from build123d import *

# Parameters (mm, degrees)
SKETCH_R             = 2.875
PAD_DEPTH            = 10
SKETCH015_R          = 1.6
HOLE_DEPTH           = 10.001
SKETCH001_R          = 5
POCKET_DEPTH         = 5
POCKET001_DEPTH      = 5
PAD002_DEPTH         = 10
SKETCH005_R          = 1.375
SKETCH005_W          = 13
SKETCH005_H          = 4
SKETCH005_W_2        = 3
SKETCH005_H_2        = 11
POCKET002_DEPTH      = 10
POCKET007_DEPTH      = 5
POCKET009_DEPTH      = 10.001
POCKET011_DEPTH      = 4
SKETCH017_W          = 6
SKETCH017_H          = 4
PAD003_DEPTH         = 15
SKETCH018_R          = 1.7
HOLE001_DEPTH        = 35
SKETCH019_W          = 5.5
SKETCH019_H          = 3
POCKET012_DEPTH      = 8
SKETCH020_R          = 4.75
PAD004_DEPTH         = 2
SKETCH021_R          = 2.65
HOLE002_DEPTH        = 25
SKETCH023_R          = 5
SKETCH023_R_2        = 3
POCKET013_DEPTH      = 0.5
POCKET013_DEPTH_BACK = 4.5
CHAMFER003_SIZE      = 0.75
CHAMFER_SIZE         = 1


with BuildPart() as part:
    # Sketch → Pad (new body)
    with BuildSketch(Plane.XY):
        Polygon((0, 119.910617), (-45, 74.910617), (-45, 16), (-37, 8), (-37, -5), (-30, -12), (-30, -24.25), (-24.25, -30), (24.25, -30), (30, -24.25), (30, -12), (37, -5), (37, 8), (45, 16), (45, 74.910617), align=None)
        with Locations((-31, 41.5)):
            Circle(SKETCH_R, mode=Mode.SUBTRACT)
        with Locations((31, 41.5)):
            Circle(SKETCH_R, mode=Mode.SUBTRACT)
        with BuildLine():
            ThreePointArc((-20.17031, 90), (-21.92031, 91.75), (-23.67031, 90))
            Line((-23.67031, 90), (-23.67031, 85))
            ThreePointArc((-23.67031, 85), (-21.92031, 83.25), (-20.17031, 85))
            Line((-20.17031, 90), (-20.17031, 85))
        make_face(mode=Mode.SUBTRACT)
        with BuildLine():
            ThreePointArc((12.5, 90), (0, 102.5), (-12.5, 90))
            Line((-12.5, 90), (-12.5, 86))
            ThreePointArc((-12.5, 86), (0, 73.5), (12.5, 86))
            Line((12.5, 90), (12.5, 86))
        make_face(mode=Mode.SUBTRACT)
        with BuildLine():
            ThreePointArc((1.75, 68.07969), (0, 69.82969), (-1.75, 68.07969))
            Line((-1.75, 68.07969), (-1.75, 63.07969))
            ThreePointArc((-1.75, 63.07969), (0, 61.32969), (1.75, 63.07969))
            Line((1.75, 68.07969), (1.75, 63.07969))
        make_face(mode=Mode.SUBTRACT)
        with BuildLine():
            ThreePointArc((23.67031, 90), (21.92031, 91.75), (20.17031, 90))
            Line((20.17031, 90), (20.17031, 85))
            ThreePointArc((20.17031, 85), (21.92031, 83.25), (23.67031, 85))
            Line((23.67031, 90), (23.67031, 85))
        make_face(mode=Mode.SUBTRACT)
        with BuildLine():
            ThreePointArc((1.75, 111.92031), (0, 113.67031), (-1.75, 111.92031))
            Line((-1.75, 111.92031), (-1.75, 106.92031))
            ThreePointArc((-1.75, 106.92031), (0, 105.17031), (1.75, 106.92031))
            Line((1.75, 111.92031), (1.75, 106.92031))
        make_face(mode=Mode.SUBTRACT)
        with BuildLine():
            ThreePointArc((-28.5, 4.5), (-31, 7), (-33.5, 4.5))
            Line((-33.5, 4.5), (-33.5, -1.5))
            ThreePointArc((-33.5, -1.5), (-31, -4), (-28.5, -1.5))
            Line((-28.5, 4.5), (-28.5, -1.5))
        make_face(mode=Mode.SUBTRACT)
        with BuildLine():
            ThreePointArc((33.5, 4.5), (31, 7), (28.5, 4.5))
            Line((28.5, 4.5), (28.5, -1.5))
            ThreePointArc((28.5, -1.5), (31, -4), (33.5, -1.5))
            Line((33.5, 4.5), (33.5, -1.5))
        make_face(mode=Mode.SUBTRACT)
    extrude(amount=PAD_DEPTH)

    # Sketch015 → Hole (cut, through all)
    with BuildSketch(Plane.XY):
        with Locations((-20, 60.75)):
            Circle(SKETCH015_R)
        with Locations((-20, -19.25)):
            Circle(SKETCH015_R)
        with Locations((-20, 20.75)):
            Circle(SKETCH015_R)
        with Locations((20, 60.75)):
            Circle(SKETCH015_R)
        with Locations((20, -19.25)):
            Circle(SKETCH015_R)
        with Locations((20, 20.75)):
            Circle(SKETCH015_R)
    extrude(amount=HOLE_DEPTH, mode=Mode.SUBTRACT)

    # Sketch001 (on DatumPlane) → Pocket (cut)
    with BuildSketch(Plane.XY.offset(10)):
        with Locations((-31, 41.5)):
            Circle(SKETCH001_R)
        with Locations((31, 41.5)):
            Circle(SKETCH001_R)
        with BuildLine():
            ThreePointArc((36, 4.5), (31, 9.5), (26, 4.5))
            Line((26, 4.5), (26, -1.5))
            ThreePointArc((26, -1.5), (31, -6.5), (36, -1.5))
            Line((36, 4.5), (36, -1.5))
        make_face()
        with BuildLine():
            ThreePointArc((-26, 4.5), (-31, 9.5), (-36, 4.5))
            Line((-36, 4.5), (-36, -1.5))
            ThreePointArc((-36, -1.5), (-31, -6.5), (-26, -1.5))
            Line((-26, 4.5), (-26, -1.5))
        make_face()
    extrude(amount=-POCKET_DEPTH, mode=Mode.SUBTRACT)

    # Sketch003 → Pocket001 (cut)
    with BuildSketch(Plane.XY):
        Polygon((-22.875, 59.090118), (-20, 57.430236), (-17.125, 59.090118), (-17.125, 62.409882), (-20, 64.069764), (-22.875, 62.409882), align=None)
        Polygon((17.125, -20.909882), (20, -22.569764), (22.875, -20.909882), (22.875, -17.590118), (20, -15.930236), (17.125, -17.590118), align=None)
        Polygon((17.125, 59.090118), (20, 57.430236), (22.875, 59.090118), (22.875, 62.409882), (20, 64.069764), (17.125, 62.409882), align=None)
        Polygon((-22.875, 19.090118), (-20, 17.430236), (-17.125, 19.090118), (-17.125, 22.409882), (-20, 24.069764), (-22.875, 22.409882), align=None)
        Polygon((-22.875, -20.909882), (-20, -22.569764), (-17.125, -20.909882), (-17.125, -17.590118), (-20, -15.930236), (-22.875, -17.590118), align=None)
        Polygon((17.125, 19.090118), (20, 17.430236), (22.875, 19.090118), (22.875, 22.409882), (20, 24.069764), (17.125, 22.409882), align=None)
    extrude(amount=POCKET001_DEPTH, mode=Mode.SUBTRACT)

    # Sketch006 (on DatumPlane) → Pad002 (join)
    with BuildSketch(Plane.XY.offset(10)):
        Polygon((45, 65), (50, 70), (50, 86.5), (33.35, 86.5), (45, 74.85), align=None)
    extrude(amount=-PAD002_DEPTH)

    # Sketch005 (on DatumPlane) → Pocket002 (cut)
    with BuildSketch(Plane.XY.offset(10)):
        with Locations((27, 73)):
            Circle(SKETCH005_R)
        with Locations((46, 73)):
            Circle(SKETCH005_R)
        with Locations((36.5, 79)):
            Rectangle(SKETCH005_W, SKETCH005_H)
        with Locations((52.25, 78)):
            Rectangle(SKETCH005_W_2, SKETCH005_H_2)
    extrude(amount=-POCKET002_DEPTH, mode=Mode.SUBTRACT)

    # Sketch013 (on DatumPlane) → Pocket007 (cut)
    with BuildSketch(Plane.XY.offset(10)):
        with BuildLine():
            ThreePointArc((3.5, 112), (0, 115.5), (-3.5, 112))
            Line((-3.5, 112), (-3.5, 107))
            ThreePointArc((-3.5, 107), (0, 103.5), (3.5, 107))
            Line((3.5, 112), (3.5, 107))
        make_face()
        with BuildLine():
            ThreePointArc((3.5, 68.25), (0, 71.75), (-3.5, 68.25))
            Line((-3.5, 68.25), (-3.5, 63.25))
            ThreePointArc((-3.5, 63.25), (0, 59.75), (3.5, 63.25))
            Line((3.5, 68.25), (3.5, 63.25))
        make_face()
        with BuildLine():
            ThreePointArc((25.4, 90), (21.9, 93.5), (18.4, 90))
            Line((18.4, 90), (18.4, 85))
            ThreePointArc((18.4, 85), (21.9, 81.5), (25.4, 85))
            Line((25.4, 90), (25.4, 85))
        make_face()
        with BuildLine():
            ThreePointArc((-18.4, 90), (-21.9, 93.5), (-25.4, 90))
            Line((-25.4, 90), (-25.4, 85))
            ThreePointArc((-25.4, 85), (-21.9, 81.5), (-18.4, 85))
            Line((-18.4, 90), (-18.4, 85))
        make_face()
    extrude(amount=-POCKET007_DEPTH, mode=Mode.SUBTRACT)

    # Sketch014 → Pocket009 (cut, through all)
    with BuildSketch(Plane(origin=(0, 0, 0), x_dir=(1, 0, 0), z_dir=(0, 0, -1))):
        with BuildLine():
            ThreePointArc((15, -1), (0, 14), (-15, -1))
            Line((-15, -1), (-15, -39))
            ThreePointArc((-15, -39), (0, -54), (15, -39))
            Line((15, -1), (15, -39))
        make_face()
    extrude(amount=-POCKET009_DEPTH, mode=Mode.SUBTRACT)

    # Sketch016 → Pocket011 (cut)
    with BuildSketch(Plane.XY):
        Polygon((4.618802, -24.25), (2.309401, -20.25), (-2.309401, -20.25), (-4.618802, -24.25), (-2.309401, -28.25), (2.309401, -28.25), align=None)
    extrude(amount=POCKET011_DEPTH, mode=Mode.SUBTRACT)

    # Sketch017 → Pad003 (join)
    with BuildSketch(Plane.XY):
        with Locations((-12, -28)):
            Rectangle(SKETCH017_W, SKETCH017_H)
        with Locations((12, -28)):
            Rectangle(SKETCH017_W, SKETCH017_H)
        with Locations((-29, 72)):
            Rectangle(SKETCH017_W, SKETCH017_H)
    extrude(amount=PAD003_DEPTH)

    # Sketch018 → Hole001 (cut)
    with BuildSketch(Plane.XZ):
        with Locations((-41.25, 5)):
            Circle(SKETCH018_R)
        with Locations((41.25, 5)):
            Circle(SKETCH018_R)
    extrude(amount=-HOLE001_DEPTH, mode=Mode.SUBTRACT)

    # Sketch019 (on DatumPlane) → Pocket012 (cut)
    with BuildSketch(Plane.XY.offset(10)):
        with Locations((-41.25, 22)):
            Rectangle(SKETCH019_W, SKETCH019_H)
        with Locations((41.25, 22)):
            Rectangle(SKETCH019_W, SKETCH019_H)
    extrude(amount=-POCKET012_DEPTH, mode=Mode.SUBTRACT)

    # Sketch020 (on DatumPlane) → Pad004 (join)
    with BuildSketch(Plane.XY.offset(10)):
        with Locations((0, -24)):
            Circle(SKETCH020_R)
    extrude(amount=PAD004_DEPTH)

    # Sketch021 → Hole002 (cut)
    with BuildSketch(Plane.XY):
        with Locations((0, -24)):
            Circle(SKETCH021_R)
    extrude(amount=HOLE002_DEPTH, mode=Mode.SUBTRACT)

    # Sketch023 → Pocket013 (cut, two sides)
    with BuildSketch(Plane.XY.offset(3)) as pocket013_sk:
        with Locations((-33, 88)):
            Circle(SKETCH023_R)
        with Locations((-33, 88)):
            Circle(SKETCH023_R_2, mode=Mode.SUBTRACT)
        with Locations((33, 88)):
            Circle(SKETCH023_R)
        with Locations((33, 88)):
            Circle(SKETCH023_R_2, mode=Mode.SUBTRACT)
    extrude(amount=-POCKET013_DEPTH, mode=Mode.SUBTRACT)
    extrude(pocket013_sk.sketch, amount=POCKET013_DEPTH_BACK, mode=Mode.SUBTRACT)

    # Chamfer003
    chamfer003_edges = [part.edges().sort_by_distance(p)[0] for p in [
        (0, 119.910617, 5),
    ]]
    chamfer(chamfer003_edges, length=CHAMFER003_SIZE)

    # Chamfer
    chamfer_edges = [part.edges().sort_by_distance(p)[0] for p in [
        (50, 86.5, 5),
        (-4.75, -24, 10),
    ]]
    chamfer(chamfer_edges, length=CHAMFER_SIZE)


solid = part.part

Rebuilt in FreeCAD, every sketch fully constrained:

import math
import FreeCAD as App
import Part
import Sketcher
from FreeCAD import Vector
Q = App.Units.Quantity


def edges_at(feature, points):
    """Names of the edges that pass closest to the given points."""
    edges = feature.Shape.Edges
    near = lambda p: min(range(len(edges)), key=lambda i: edges[i].distToShape(Part.Vertex(*p))[0])
    return sorted({f"Edge{near(p) + 1}" for p in points})

doc = App.newDocument("Part")
body = doc.addObject("PartDesign::Body", "Body")

# Sketch on XY plane
sketch1 = body.newObject("Sketcher::SketchObject", "Sketch")
sketch1.AttachmentSupport = (doc.getObject("XY_Plane"), [""])
sketch1.MapMode = "FlatFace"
sketch1.addGeometry([
    Part.LineSegment(Vector(0, 119.9, 0), Vector(-45, 74.9, 0)),  # 0
    Part.LineSegment(Vector(-45, 74.9, 0), Vector(-45, 16, 0)),  # 1
    Part.LineSegment(Vector(-45, 16, 0), Vector(-37, 8, 0)),  # 2
    Part.LineSegment(Vector(-37, 8, 0), Vector(-37, -5, 0)),  # 3
    Part.LineSegment(Vector(-37, -5, 0), Vector(-30, -12, 0)),  # 4
    Part.LineSegment(Vector(-30, -12, 0), Vector(-30, -24.2, 0)),  # 5
    Part.LineSegment(Vector(-30, -24.2, 0), Vector(-24.2, -30, 0)),  # 6
    Part.LineSegment(Vector(-24.2, -30, 0), Vector(24.2, -30, 0)),  # 7
    Part.LineSegment(Vector(24.2, -30, 0), Vector(30, -24.2, 0)),  # 8
    Part.LineSegment(Vector(30, -24.2, 0), Vector(30, -12, 0)),  # 9
    Part.LineSegment(Vector(30, -12, 0), Vector(37, -5, 0)),  # 10
    Part.LineSegment(Vector(37, -5, 0), Vector(37, 8, 0)),  # 11
    Part.LineSegment(Vector(37, 8, 0), Vector(45, 16, 0)),  # 12
    Part.LineSegment(Vector(45, 16, 0), Vector(45, 74.9, 0)),  # 13
    Part.LineSegment(Vector(45, 74.9, 0), Vector(0, 119.9, 0)),  # 14
    Part.ArcOfCircle(Part.Circle(Vector(-31, 4.5, 0), Vector(0, 0, 1), 2.5), math.radians(0), math.radians(180)),  # 15
    Part.LineSegment(Vector(-28.5, 4.5, 0), Vector(-28.5, -1.5, 0)),  # 16
    Part.ArcOfCircle(Part.Circle(Vector(-31, -1.5, 0), Vector(0, 0, 1), 2.5), math.radians(180), math.radians(360)),  # 17
    Part.LineSegment(Vector(-33.5, -1.5, 0), Vector(-33.5, 4.5, 0)),  # 18
    Part.Circle(Vector(-31, 41.5, 0), Vector(0, 0, 1), 2.9),  # 19
    Part.ArcOfCircle(Part.Circle(Vector(31, 4.5, 0), Vector(0, 0, 1), 2.5), math.radians(0), math.radians(180)),  # 20
    Part.LineSegment(Vector(33.5, 4.5, 0), Vector(33.5, -1.5, 0)),  # 21
    Part.ArcOfCircle(Part.Circle(Vector(31, -1.5, 0), Vector(0, 0, 1), 2.5), math.radians(180), math.radians(360)),  # 22
    Part.LineSegment(Vector(28.5, -1.5, 0), Vector(28.5, 4.5, 0)),  # 23
    Part.Circle(Vector(31, 41.5, 0), Vector(0, 0, 1), 2.9),  # 24
    Part.ArcOfCircle(Part.Circle(Vector(-21.9, 90, 0), Vector(0, 0, 1), 1.8), math.radians(0), math.radians(180)),  # 25
    Part.LineSegment(Vector(-20.2, 90, 0), Vector(-20.2, 85, 0)),  # 26
    Part.ArcOfCircle(Part.Circle(Vector(-21.9, 85, 0), Vector(0, 0, 1), 1.8), math.radians(180), math.radians(360)),  # 27
    Part.LineSegment(Vector(-23.7, 85, 0), Vector(-23.7, 90, 0)),  # 28
    Part.ArcOfCircle(Part.Circle(Vector(0, 68.1, 0), Vector(0, 0, 1), 1.8), math.radians(0), math.radians(180)),  # 29
    Part.LineSegment(Vector(1.8, 68.1, 0), Vector(1.8, 63.1, 0)),  # 30
    Part.ArcOfCircle(Part.Circle(Vector(0, 63.1, 0), Vector(0, 0, 1), 1.8), math.radians(180), math.radians(360)),  # 31
    Part.LineSegment(Vector(-1.8, 63.1, 0), Vector(-1.8, 68.1, 0)),  # 32
    Part.ArcOfCircle(Part.Circle(Vector(0, 90, 0), Vector(0, 0, 1), 12.5), math.radians(0), math.radians(180)),  # 33
    Part.LineSegment(Vector(12.5, 90, 0), Vector(12.5, 86, 0)),  # 34
    Part.ArcOfCircle(Part.Circle(Vector(0, 86, 0), Vector(0, 0, 1), 12.5), math.radians(180), math.radians(360)),  # 35
    Part.LineSegment(Vector(-12.5, 86, 0), Vector(-12.5, 90, 0)),  # 36
    Part.ArcOfCircle(Part.Circle(Vector(0, 111.9, 0), Vector(0, 0, 1), 1.8), math.radians(0), math.radians(180)),  # 37
    Part.LineSegment(Vector(1.8, 111.9, 0), Vector(1.8, 106.9, 0)),  # 38
    Part.ArcOfCircle(Part.Circle(Vector(0, 106.9, 0), Vector(0, 0, 1), 1.8), math.radians(180), math.radians(360)),  # 39
    Part.LineSegment(Vector(-1.8, 106.9, 0), Vector(-1.8, 111.9, 0)),  # 40
    Part.ArcOfCircle(Part.Circle(Vector(21.9, 90, 0), Vector(0, 0, 1), 1.8), math.radians(0), math.radians(180)),  # 41
    Part.LineSegment(Vector(23.7, 90, 0), Vector(23.7, 85, 0)),  # 42
    Part.ArcOfCircle(Part.Circle(Vector(21.9, 85, 0), Vector(0, 0, 1), 1.8), math.radians(180), math.radians(360)),  # 43
    Part.LineSegment(Vector(20.2, 85, 0), Vector(20.2, 90, 0)),  # 44
], False)
sketch1.addConstraint([
    Sketcher.Constraint("Coincident", 0, 2, 1, 1),
    Sketcher.Constraint("Coincident", 1, 2, 2, 1),
    Sketcher.Constraint("Coincident", 2, 2, 3, 1),
    Sketcher.Constraint("Coincident", 3, 2, 4, 1),
    Sketcher.Constraint("Coincident", 4, 2, 5, 1),
    Sketcher.Constraint("Coincident", 5, 2, 6, 1),
    Sketcher.Constraint("Coincident", 6, 2, 7, 1),
    Sketcher.Constraint("Coincident", 7, 2, 8, 1),
    Sketcher.Constraint("Coincident", 8, 2, 9, 1),
    Sketcher.Constraint("Coincident", 9, 2, 10, 1),
    Sketcher.Constraint("Coincident", 10, 2, 11, 1),
    Sketcher.Constraint("Coincident", 11, 2, 12, 1),
    Sketcher.Constraint("Coincident", 12, 2, 13, 1),
    Sketcher.Constraint("Coincident", 13, 2, 14, 1),
    Sketcher.Constraint("Coincident", 14, 2, 0, 1),
    Sketcher.Constraint("Tangent", 15, 1, 16, 1),
    Sketcher.Constraint("Tangent", 16, 2, 17, 2),
    Sketcher.Constraint("Tangent", 17, 1, 18, 1),
    Sketcher.Constraint("Tangent", 18, 2, 15, 2),
    Sketcher.Constraint("Tangent", 20, 1, 21, 1),
    Sketcher.Constraint("Tangent", 21, 2, 22, 2),
    Sketcher.Constraint("Tangent", 22, 1, 23, 1),
    Sketcher.Constraint("Tangent", 23, 2, 20, 2),
    Sketcher.Constraint("Tangent", 25, 1, 26, 1),
    Sketcher.Constraint("Tangent", 26, 2, 27, 2),
    Sketcher.Constraint("Tangent", 27, 1, 28, 1),
    Sketcher.Constraint("Tangent", 28, 2, 25, 2),
    Sketcher.Constraint("Tangent", 29, 1, 30, 1),
    Sketcher.Constraint("Tangent", 30, 2, 31, 2),
    Sketcher.Constraint("Tangent", 31, 1, 32, 1),
    Sketcher.Constraint("Tangent", 32, 2, 29, 2),
    Sketcher.Constraint("Tangent", 33, 1, 34, 1),
    Sketcher.Constraint("Tangent", 34, 2, 35, 2),
    Sketcher.Constraint("Tangent", 35, 1, 36, 1),
    Sketcher.Constraint("Tangent", 36, 2, 33, 2),
    Sketcher.Constraint("Tangent", 37, 1, 38, 1),
    Sketcher.Constraint("Tangent", 38, 2, 39, 2),
    Sketcher.Constraint("Tangent", 39, 1, 40, 1),
    Sketcher.Constraint("Tangent", 40, 2, 37, 2),
    Sketcher.Constraint("Tangent", 41, 1, 42, 1),
    Sketcher.Constraint("Tangent", 42, 2, 43, 2),
    Sketcher.Constraint("Tangent", 43, 1, 44, 1),
    Sketcher.Constraint("Tangent", 44, 2, 41, 2),
    Sketcher.Constraint("Vertical", 1),
    Sketcher.Constraint("Vertical", 3),
    Sketcher.Constraint("Vertical", 5),
    Sketcher.Constraint("Horizontal", 7),
    Sketcher.Constraint("Vertical", 9),
    Sketcher.Constraint("Vertical", 11),
    Sketcher.Constraint("Vertical", 13),
    Sketcher.Constraint("Vertical", 16),
    Sketcher.Constraint("Vertical", 18),
    Sketcher.Constraint("Vertical", 21),
    Sketcher.Constraint("Vertical", 23),
    Sketcher.Constraint("Vertical", 26),
    Sketcher.Constraint("Vertical", 28),
    Sketcher.Constraint("Vertical", 30),
    Sketcher.Constraint("Vertical", 32),
    Sketcher.Constraint("Vertical", 34),
    Sketcher.Constraint("Vertical", 36),
    Sketcher.Constraint("Vertical", 38),
    Sketcher.Constraint("Vertical", 40),
    Sketcher.Constraint("Vertical", 42),
    Sketcher.Constraint("Vertical", 44),
    Sketcher.Constraint("Equal", 17, 20),
    Sketcher.Constraint("Equal", 19, 24),
    Sketcher.Constraint("Equal", 27, 29),
    Sketcher.Constraint("Equal", 31, 37),
    Sketcher.Constraint("Equal", 39, 41),
    Sketcher.Constraint("Symmetric", 15, 3, 20, 3, -2),
    Sketcher.Constraint("Symmetric", 19, 3, 24, 3, -2),
    Sketcher.Constraint("Symmetric", 25, 3, 41, 3, -2),
    Sketcher.Constraint("Symmetric", 5, 2, 8, 2, -2),
    Sketcher.Constraint("Symmetric", 3, 2, 10, 2, -2),
    Sketcher.Constraint("Symmetric", 1, 2, 12, 2, -2),
    Sketcher.Constraint("PointOnObject", 29, 3, -2),
    Sketcher.Constraint("PointOnObject", 33, 3, -2),
    Sketcher.Constraint("PointOnObject", 37, 3, -2),
    Sketcher.Constraint("PointOnObject", 14, 2, -2),
    Sketcher.Constraint("Perpendicular", 0, 2),
    Sketcher.Constraint("Parallel", 2, 4),
    Sketcher.Constraint("Parallel", 4, 6),
    Sketcher.Constraint("Perpendicular", 6, 8),
    Sketcher.Constraint("Parallel", 8, 10),
    Sketcher.Constraint("Parallel", 10, 12),
    Sketcher.Constraint("Perpendicular", 12, 14),
    Sketcher.Constraint("Horizontal", 17, 3, 22, 3),
    Sketcher.Constraint("Horizontal", 25, 3, 33, 3),
    Sketcher.Constraint("Horizontal", 27, 3, 43, 3),
    Sketcher.Constraint("Horizontal", 4, 2, 9, 2),
    Sketcher.Constraint("Vertical", 17, 3, 19, 3),
    Sketcher.Constraint("Equal", 28, 30),
    Sketcher.Constraint("Equal", 32, 38),
    Sketcher.Constraint("Radius", 15, Q("2.5 mm")),
    Sketcher.Constraint("Radius", 33, Q("12.5 mm")),
    Sketcher.Constraint("Diameter", 19, Q("5.75 mm")),
    Sketcher.Constraint("DistanceY", 3, 2, 3, 1, Q("13 mm")),
    Sketcher.Constraint("DistanceY", 16, 2, 16, 1, Q("6 mm")),
    Sketcher.Constraint("DistanceY", 26, 2, 26, 1, Q("5 mm")),
    Sketcher.Constraint("DistanceY", 34, 2, 34, 1, Q("4 mm")),
    Sketcher.Constraint("Radius", 25, Q("1.75 mm")),
    Sketcher.Constraint("DistanceX", 7, 1, 7, 2, Q("48.5 mm")),
    Sketcher.Constraint("DistanceX", 15, 3, -1, 1, Q("31 mm")),
    Sketcher.Constraint("DistanceY", -1, 1, 25, 3, Q("90 mm")),
    Sketcher.Constraint("DistanceX", 0, 2, -1, 1, Q("45 mm")),
    Sketcher.Constraint("DistanceY", -1, 1, 1, 2, Q("16 mm")),
    Sketcher.Constraint("DistanceX", 2, 2, -1, 1, Q("37 mm")),
    Sketcher.Constraint("DistanceX", 4, 2, -1, 1, Q("30 mm")),
    Sketcher.Constraint("DistanceY", 6, 2, -1, 1, Q("30 mm")),
    Sketcher.Constraint("DistanceY", 15, 3, 19, 3, Q("37 mm")),
    Sketcher.Constraint("DistanceY", -1, 1, 15, 3, Q("4.5 mm")),
    Sketcher.Constraint("DistanceY", 1, 2, 1, 1, Q("58.910617 mm")),
    Sketcher.Constraint("DistanceX", 25, 3, -1, 1, Q("21.92031 mm")),
    Sketcher.Constraint("DistanceY", -1, 1, 29, 3, Q("68.07969 mm")),
    Sketcher.Constraint("DistanceY", -1, 1, 37, 3, Q("111.92031 mm")),
])
pad1 = body.newObject("PartDesign::Pad", "Pad")
pad1.Profile = sketch1
pad1.Length = 10

# Sketch on XY plane
sketch2 = body.newObject("Sketcher::SketchObject", "Sketch001")
sketch2.AttachmentSupport = (doc.getObject("XY_Plane"), [""])
sketch2.MapMode = "FlatFace"
sketch2.addGeometry([
    Part.Circle(Vector(-20, 60.8, 0), Vector(0, 0, 1), 1.6),  # 0
    Part.Circle(Vector(-20, -19.2, 0), Vector(0, 0, 1), 1.6),  # 1
    Part.Circle(Vector(-20, 20.8, 0), Vector(0, 0, 1), 1.6),  # 2
    Part.Circle(Vector(20, 60.8, 0), Vector(0, 0, 1), 1.6),  # 3
    Part.Circle(Vector(20, -19.2, 0), Vector(0, 0, 1), 1.6),  # 4
    Part.Circle(Vector(20, 20.8, 0), Vector(0, 0, 1), 1.6),  # 5
], False)
sketch2.addConstraint([
    Sketcher.Constraint("Equal", 0, 1),
    Sketcher.Constraint("Equal", 1, 2),
    Sketcher.Constraint("Equal", 2, 3),
    Sketcher.Constraint("Equal", 3, 4),
    Sketcher.Constraint("Equal", 4, 5),
    Sketcher.Constraint("Symmetric", 0, 3, 3, 3, -2),
    Sketcher.Constraint("Symmetric", 1, 3, 4, 3, -2),
    Sketcher.Constraint("Symmetric", 2, 3, 5, 3, -2),
    Sketcher.Constraint("Vertical", 0, 3, 1, 3),
    Sketcher.Constraint("Vertical", 1, 3, 2, 3),
    Sketcher.Constraint("Diameter", 0, Q("3.2 mm")),
    Sketcher.Constraint("DistanceX", 0, 3, -1, 1, Q("20 mm")),
    Sketcher.Constraint("DistanceY", 1, 3, 0, 3, Q("80 mm")),
    Sketcher.Constraint("DistanceY", 2, 3, 0, 3, Q("40 mm")),
    Sketcher.Constraint("DistanceY", -1, 1, 0, 3, Q("60.75 mm")),
])
pocket1 = body.newObject("PartDesign::Pocket", "Pocket")
pocket1.Profile = sketch2
pocket1.Type = "ThroughAll"
pocket1.Reversed = True

# Sketch on XY plane
sketch3 = body.newObject("Sketcher::SketchObject", "Sketch002")
sketch3.AttachmentSupport = (doc.getObject("XY_Plane"), [""])
sketch3.MapMode = "FlatFace"
sketch3.AttachmentOffset = App.Placement(Vector(0, 0, 10), App.Rotation())
sketch3.addGeometry([
    Part.Circle(Vector(-31, 42, 0), Vector(0, 0, 1), 5),  # 0
    Part.Circle(Vector(31, 42, 0), Vector(0, 0, 1), 5),  # 1
    Part.ArcOfCircle(Part.Circle(Vector(31, 4, 0), Vector(0, 0, 1), 5), math.radians(0), math.radians(180)),  # 2
    Part.LineSegment(Vector(26, 4, 0), Vector(26, -2, 0)),  # 3
    Part.ArcOfCircle(Part.Circle(Vector(31, -2, 0), Vector(0, 0, 1), 5), math.radians(180), math.radians(360)),  # 4
    Part.LineSegment(Vector(36, -2, 0), Vector(36, 4, 0)),  # 5
    Part.ArcOfCircle(Part.Circle(Vector(-31, 4, 0), Vector(0, 0, 1), 5), math.radians(0), math.radians(180)),  # 6
    Part.LineSegment(Vector(-36, 4, 0), Vector(-36, -2, 0)),  # 7
    Part.ArcOfCircle(Part.Circle(Vector(-31, -2, 0), Vector(0, 0, 1), 5), math.radians(180), math.radians(360)),  # 8
    Part.LineSegment(Vector(-26, -2, 0), Vector(-26, 4, 0)),  # 9
], False)
sketch3.addConstraint([
    Sketcher.Constraint("Tangent", 2, 2, 3, 1),
    Sketcher.Constraint("Tangent", 3, 2, 4, 1),
    Sketcher.Constraint("Tangent", 4, 2, 5, 1),
    Sketcher.Constraint("Tangent", 5, 2, 2, 1),
    Sketcher.Constraint("Tangent", 6, 2, 7, 1),
    Sketcher.Constraint("Tangent", 7, 2, 8, 1),
    Sketcher.Constraint("Tangent", 8, 2, 9, 1),
    Sketcher.Constraint("Tangent", 9, 2, 6, 1),
    Sketcher.Constraint("Vertical", 3),
    Sketcher.Constraint("Vertical", 5),
    Sketcher.Constraint("Vertical", 7),
    Sketcher.Constraint("Vertical", 9),
    Sketcher.Constraint("Equal", 0, 1),
    Sketcher.Constraint("Equal", 1, 2),
    Sketcher.Constraint("Equal", 4, 6),
    Sketcher.Constraint("Symmetric", 0, 3, 1, 3, -2),
    Sketcher.Constraint("Symmetric", 2, 3, 6, 3, -2),
    Sketcher.Constraint("Horizontal", 4, 3, 8, 3),
    Sketcher.Constraint("Vertical", 1, 3, 2, 3),
    Sketcher.Constraint("Diameter", 0, Q("10 mm")),
    Sketcher.Constraint("DistanceY", 3, 2, 3, 1, Q("6 mm")),
    Sketcher.Constraint("DistanceX", 0, 3, -1, 1, Q("31 mm")),
    Sketcher.Constraint("DistanceY", 2, 3, 1, 3, Q("37 mm")),
    Sketcher.Constraint("DistanceY", -1, 1, 0, 3, Q("41.5 mm")),
])
pocket2 = body.newObject("PartDesign::Pocket", "Pocket001")
pocket2.Profile = sketch3
pocket2.Length = 5

# Sketch on XY plane
sketch4 = body.newObject("Sketcher::SketchObject", "Sketch003")
sketch4.AttachmentSupport = (doc.getObject("XY_Plane"), [""])
sketch4.MapMode = "FlatFace"
sketch4.addGeometry([
    Part.LineSegment(Vector(-22.9, 59.1, 0), Vector(-20, 57.4, 0)),  # 0
    Part.LineSegment(Vector(-20, 57.4, 0), Vector(-17.1, 59.1, 0)),  # 1
    Part.LineSegment(Vector(-17.1, 59.1, 0), Vector(-17.1, 62.4, 0)),  # 2
    Part.LineSegment(Vector(-17.1, 62.4, 0), Vector(-20, 64.1, 0)),  # 3
    Part.LineSegment(Vector(-20, 64.1, 0), Vector(-22.9, 62.4, 0)),  # 4
    Part.LineSegment(Vector(-22.9, 62.4, 0), Vector(-22.9, 59.1, 0)),  # 5
    Part.LineSegment(Vector(17.1, -20.9, 0), Vector(20, -22.6, 0)),  # 6
    Part.LineSegment(Vector(20, -22.6, 0), Vector(22.9, -20.9, 0)),  # 7
    Part.LineSegment(Vector(22.9, -20.9, 0), Vector(22.9, -17.6, 0)),  # 8
    Part.LineSegment(Vector(22.9, -17.6, 0), Vector(20, -15.9, 0)),  # 9
    Part.LineSegment(Vector(20, -15.9, 0), Vector(17.1, -17.6, 0)),  # 10
    Part.LineSegment(Vector(17.1, -17.6, 0), Vector(17.1, -20.9, 0)),  # 11
    Part.LineSegment(Vector(17.1, 59.1, 0), Vector(20, 57.4, 0)),  # 12
    Part.LineSegment(Vector(20, 57.4, 0), Vector(22.9, 59.1, 0)),  # 13
    Part.LineSegment(Vector(22.9, 59.1, 0), Vector(22.9, 62.4, 0)),  # 14
    Part.LineSegment(Vector(22.9, 62.4, 0), Vector(20, 64.1, 0)),  # 15
    Part.LineSegment(Vector(20, 64.1, 0), Vector(17.1, 62.4, 0)),  # 16
    Part.LineSegment(Vector(17.1, 62.4, 0), Vector(17.1, 59.1, 0)),  # 17
    Part.LineSegment(Vector(-22.9, 19.1, 0), Vector(-20, 17.4, 0)),  # 18
    Part.LineSegment(Vector(-20, 17.4, 0), Vector(-17.1, 19.1, 0)),  # 19
    Part.LineSegment(Vector(-17.1, 19.1, 0), Vector(-17.1, 22.4, 0)),  # 20
    Part.LineSegment(Vector(-17.1, 22.4, 0), Vector(-20, 24.1, 0)),  # 21
    Part.LineSegment(Vector(-20, 24.1, 0), Vector(-22.9, 22.4, 0)),  # 22
    Part.LineSegment(Vector(-22.9, 22.4, 0), Vector(-22.9, 19.1, 0)),  # 23
    Part.LineSegment(Vector(-22.9, -20.9, 0), Vector(-20, -22.6, 0)),  # 24
    Part.LineSegment(Vector(-20, -22.6, 0), Vector(-17.1, -20.9, 0)),  # 25
    Part.LineSegment(Vector(-17.1, -20.9, 0), Vector(-17.1, -17.6, 0)),  # 26
    Part.LineSegment(Vector(-17.1, -17.6, 0), Vector(-20, -15.9, 0)),  # 27
    Part.LineSegment(Vector(-20, -15.9, 0), Vector(-22.9, -17.6, 0)),  # 28
    Part.LineSegment(Vector(-22.9, -17.6, 0), Vector(-22.9, -20.9, 0)),  # 29
    Part.LineSegment(Vector(17.1, 19.1, 0), Vector(20, 17.4, 0)),  # 30
    Part.LineSegment(Vector(20, 17.4, 0), Vector(22.9, 19.1, 0)),  # 31
    Part.LineSegment(Vector(22.9, 19.1, 0), Vector(22.9, 22.4, 0)),  # 32
    Part.LineSegment(Vector(22.9, 22.4, 0), Vector(20, 24.1, 0)),  # 33
    Part.LineSegment(Vector(20, 24.1, 0), Vector(17.1, 22.4, 0)),  # 34
    Part.LineSegment(Vector(17.1, 22.4, 0), Vector(17.1, 19.1, 0)),  # 35
], False)
sketch4.addConstraint([
    Sketcher.Constraint("Coincident", 0, 2, 1, 1),
    Sketcher.Constraint("Coincident", 1, 2, 2, 1),
    Sketcher.Constraint("Coincident", 2, 2, 3, 1),
    Sketcher.Constraint("Coincident", 3, 2, 4, 1),
    Sketcher.Constraint("Coincident", 4, 2, 5, 1),
    Sketcher.Constraint("Coincident", 5, 2, 0, 1),
    Sketcher.Constraint("Coincident", 6, 2, 7, 1),
    Sketcher.Constraint("Coincident", 7, 2, 8, 1),
    Sketcher.Constraint("Coincident", 8, 2, 9, 1),
    Sketcher.Constraint("Coincident", 9, 2, 10, 1),
    Sketcher.Constraint("Coincident", 10, 2, 11, 1),
    Sketcher.Constraint("Coincident", 11, 2, 6, 1),
    Sketcher.Constraint("Coincident", 12, 2, 13, 1),
    Sketcher.Constraint("Coincident", 13, 2, 14, 1),
    Sketcher.Constraint("Coincident", 14, 2, 15, 1),
    Sketcher.Constraint("Coincident", 15, 2, 16, 1),
    Sketcher.Constraint("Coincident", 16, 2, 17, 1),
    Sketcher.Constraint("Coincident", 17, 2, 12, 1),
    Sketcher.Constraint("Coincident", 18, 2, 19, 1),
    Sketcher.Constraint("Coincident", 19, 2, 20, 1),
    Sketcher.Constraint("Coincident", 20, 2, 21, 1),
    Sketcher.Constraint("Coincident", 21, 2, 22, 1),
    Sketcher.Constraint("Coincident", 22, 2, 23, 1),
    Sketcher.Constraint("Coincident", 23, 2, 18, 1),
    Sketcher.Constraint("Coincident", 24, 2, 25, 1),
    Sketcher.Constraint("Coincident", 25, 2, 26, 1),
    Sketcher.Constraint("Coincident", 26, 2, 27, 1),
    Sketcher.Constraint("Coincident", 27, 2, 28, 1),
    Sketcher.Constraint("Coincident", 28, 2, 29, 1),
    Sketcher.Constraint("Coincident", 29, 2, 24, 1),
    Sketcher.Constraint("Coincident", 30, 2, 31, 1),
    Sketcher.Constraint("Coincident", 31, 2, 32, 1),
    Sketcher.Constraint("Coincident", 32, 2, 33, 1),
    Sketcher.Constraint("Coincident", 33, 2, 34, 1),
    Sketcher.Constraint("Coincident", 34, 2, 35, 1),
    Sketcher.Constraint("Coincident", 35, 2, 30, 1),
    Sketcher.Constraint("Vertical", 2),
    Sketcher.Constraint("Vertical", 5),
    Sketcher.Constraint("Vertical", 8),
    Sketcher.Constraint("Vertical", 11),
    Sketcher.Constraint("Vertical", 14),
    Sketcher.Constraint("Vertical", 17),
    Sketcher.Constraint("Vertical", 20),
    Sketcher.Constraint("Vertical", 23),
    Sketcher.Constraint("Vertical", 26),
    Sketcher.Constraint("Vertical", 29),
    Sketcher.Constraint("Vertical", 32),
    Sketcher.Constraint("Vertical", 35),
    Sketcher.Constraint("Symmetric", 0, 2, 12, 2, -2),
    Sketcher.Constraint("Symmetric", 5, 2, 13, 2, -2),
    Sketcher.Constraint("Symmetric", 3, 2, 15, 2, -2),
    Sketcher.Constraint("Symmetric", 2, 2, 16, 2, -2),
    Sketcher.Constraint("Symmetric", 6, 2, 24, 2, -2),
    Sketcher.Constraint("Symmetric", 11, 2, 25, 2, -2),
    Sketcher.Constraint("Symmetric", 9, 2, 27, 2, -2),
    Sketcher.Constraint("Symmetric", 8, 2, 28, 2, -2),
    Sketcher.Constraint("Symmetric", 18, 2, 30, 2, -2),
    Sketcher.Constraint("Symmetric", 23, 2, 31, 2, -2),
    Sketcher.Constraint("Symmetric", 21, 2, 33, 2, -2),
    Sketcher.Constraint("Symmetric", 20, 2, 34, 2, -2),
    Sketcher.Constraint("Parallel", 0, 3),
    Sketcher.Constraint("Parallel", 1, 4),
    Sketcher.Constraint("Parallel", 3, 6),
    Sketcher.Constraint("Parallel", 4, 7),
    Sketcher.Constraint("Parallel", 6, 9),
    Sketcher.Constraint("Parallel", 7, 10),
    Sketcher.Constraint("Parallel", 9, 12),
    Sketcher.Constraint("Parallel", 10, 13),
    Sketcher.Constraint("Parallel", 12, 15),
    Sketcher.Constraint("Parallel", 15, 18),
    Sketcher.Constraint("Parallel", 16, 19),
    Sketcher.Constraint("Parallel", 18, 21),
    Sketcher.Constraint("Parallel", 19, 22),
    Sketcher.Constraint("Parallel", 21, 24),
    Sketcher.Constraint("Parallel", 24, 27),
    Sketcher.Constraint("Parallel", 27, 30),
    Sketcher.Constraint("Parallel", 30, 33),
    Sketcher.Constraint("Horizontal", 2, 2, 4, 2),
    Sketcher.Constraint("Horizontal", 1, 2, 5, 2),
    Sketcher.Constraint("Horizontal", 8, 2, 10, 2),
    Sketcher.Constraint("Horizontal", 7, 2, 11, 2),
    Sketcher.Constraint("Horizontal", 20, 2, 22, 2),
    Sketcher.Constraint("Horizontal", 19, 2, 23, 2),
    Sketcher.Constraint("Vertical", 9, 2, 12, 2),
    Sketcher.Constraint("Vertical", 8, 2, 13, 2),
    Sketcher.Constraint("Vertical", 3, 2, 18, 2),
    Sketcher.Constraint("Vertical", 2, 2, 19, 2),
    Sketcher.Constraint("Equal", 5, 8),
    Sketcher.Constraint("Equal", 17, 20),
    Sketcher.Constraint("Angle", 0, Q("-30 deg")),
    Sketcher.Constraint("DistanceX", 0, 2, -1, 1, Q("20 mm")),
    Sketcher.Constraint("DistanceY", 6, 2, 0, 2, Q("80 mm")),
    Sketcher.Constraint("DistanceY", 18, 2, 0, 2, Q("40 mm")),
    Sketcher.Constraint("DistanceX", 4, 2, 2, 2, Q("5.75 mm")),
    Sketcher.Constraint("DistanceY", 2, 1, 2, 2, Q("3.319764 mm")),
    Sketcher.Constraint("DistanceY", 7, 2, -1, 1, Q("20.909882 mm")),
])
pocket3 = body.newObject("PartDesign::Pocket", "Pocket002")
pocket3.Profile = sketch4
pocket3.Length = 5
pocket3.Reversed = True

# Sketch on XY plane
sketch5 = body.newObject("Sketcher::SketchObject", "Sketch004")
sketch5.AttachmentSupport = (doc.getObject("XY_Plane"), [""])
sketch5.MapMode = "FlatFace"
sketch5.AttachmentOffset = App.Placement(Vector(0, 0, 10), App.Rotation())
sketch5.addGeometry([
    Part.LineSegment(Vector(45, 65, 0), Vector(50, 70, 0)),  # 0
    Part.LineSegment(Vector(50, 70, 0), Vector(50, 86, 0)),  # 1
    Part.LineSegment(Vector(50, 86, 0), Vector(33, 86, 0)),  # 2
    Part.LineSegment(Vector(33, 86, 0), Vector(45, 75, 0)),  # 3
    Part.LineSegment(Vector(45, 75, 0), Vector(45, 65, 0)),  # 4
], False)
sketch5.addConstraint([
    Sketcher.Constraint("Coincident", 0, 2, 1, 1),
    Sketcher.Constraint("Coincident", 1, 2, 2, 1),
    Sketcher.Constraint("Coincident", 2, 2, 3, 1),
    Sketcher.Constraint("Coincident", 3, 2, 4, 1),
    Sketcher.Constraint("Coincident", 4, 2, 0, 1),
    Sketcher.Constraint("Vertical", 1),
    Sketcher.Constraint("Horizontal", 2),
    Sketcher.Constraint("Vertical", 4),
    Sketcher.Constraint("Perpendicular", 0, 3),
    Sketcher.Constraint("Angle", 0, Q("45 deg")),
    Sketcher.Constraint("DistanceY", 1, 1, 1, 2, Q("16.5 mm")),
    Sketcher.Constraint("DistanceX", -1, 1, 0, 2, Q("50 mm")),
    Sketcher.Constraint("DistanceY", -1, 1, 0, 2, Q("70 mm")),
    Sketcher.Constraint("DistanceX", -1, 1, 3, 2, Q("45 mm")),
    Sketcher.Constraint("DistanceX", 2, 2, 2, 1, Q("16.65 mm")),
])
pad2 = body.newObject("PartDesign::Pad", "Pad001")
pad2.Profile = sketch5
pad2.Length = 10
pad2.Reversed = True

# Sketch on XY plane
sketch6 = body.newObject("Sketcher::SketchObject", "Sketch005")
sketch6.AttachmentSupport = (doc.getObject("XY_Plane"), [""])
sketch6.MapMode = "FlatFace"
sketch6.AttachmentOffset = App.Placement(Vector(0, 0, 10), App.Rotation())
sketch6.addGeometry([
    Part.Circle(Vector(27, 73, 0), Vector(0, 0, 1), 1.4),  # 0
    Part.Circle(Vector(46, 73, 0), Vector(0, 0, 1), 1.4),  # 1
    Part.LineSegment(Vector(30, 81, 0), Vector(30, 77, 0)),  # 2
    Part.LineSegment(Vector(30, 77, 0), Vector(43, 77, 0)),  # 3
    Part.LineSegment(Vector(43, 77, 0), Vector(43, 81, 0)),  # 4
    Part.LineSegment(Vector(43, 81, 0), Vector(30, 81, 0)),  # 5
    Part.LineSegment(Vector(50.8, 83.5, 0), Vector(50.8, 72.5, 0)),  # 6
    Part.LineSegment(Vector(50.8, 72.5, 0), Vector(53.8, 72.5, 0)),  # 7
    Part.LineSegment(Vector(53.8, 72.5, 0), Vector(53.8, 83.5, 0)),  # 8
    Part.LineSegment(Vector(53.8, 83.5, 0), Vector(50.8, 83.5, 0)),  # 9
], False)
sketch6.addConstraint([
    Sketcher.Constraint("Coincident", 2, 2, 3, 1),
    Sketcher.Constraint("Coincident", 3, 2, 4, 1),
    Sketcher.Constraint("Coincident", 4, 2, 5, 1),
    Sketcher.Constraint("Coincident", 5, 2, 2, 1),
    Sketcher.Constraint("Coincident", 6, 2, 7, 1),
    Sketcher.Constraint("Coincident", 7, 2, 8, 1),
    Sketcher.Constraint("Coincident", 8, 2, 9, 1),
    Sketcher.Constraint("Coincident", 9, 2, 6, 1),
    Sketcher.Constraint("Vertical", 2),
    Sketcher.Constraint("Horizontal", 3),
    Sketcher.Constraint("Vertical", 4),
    Sketcher.Constraint("Horizontal", 5),
    Sketcher.Constraint("Vertical", 6),
    Sketcher.Constraint("Horizontal", 7),
    Sketcher.Constraint("Vertical", 8),
    Sketcher.Constraint("Horizontal", 9),
    Sketcher.Constraint("Equal", 0, 1),
    Sketcher.Constraint("Horizontal", 0, 3, 1, 3),
    Sketcher.Constraint("Diameter", 0, Q("2.75 mm")),
    Sketcher.Constraint("DistanceX", 3, 1, 3, 2, Q("13 mm")),
    Sketcher.Constraint("DistanceX", 7, 1, 7, 2, Q("3 mm")),
    Sketcher.Constraint("DistanceY", 2, 2, 2, 1, Q("4 mm")),
    Sketcher.Constraint("DistanceY", 6, 2, 6, 1, Q("11 mm")),
    Sketcher.Constraint("DistanceX", -1, 1, 0, 3, Q("27 mm")),
    Sketcher.Constraint("DistanceY", -1, 1, 0, 3, Q("73 mm")),
    Sketcher.Constraint("DistanceX", -1, 1, 1, 3, Q("46 mm")),
    Sketcher.Constraint("DistanceX", -1, 1, 2, 2, Q("30 mm")),
    Sketcher.Constraint("DistanceY", -1, 1, 2, 2, Q("77 mm")),
    Sketcher.Constraint("DistanceY", -1, 1, 6, 2, Q("72.5 mm")),
    Sketcher.Constraint("DistanceX", -1, 1, 6, 2, Q("50.75 mm")),
])
pocket4 = body.newObject("PartDesign::Pocket", "Pocket003")
pocket4.Profile = sketch6
pocket4.Length = 10

# Sketch on XY plane
sketch7 = body.newObject("Sketcher::SketchObject", "Sketch006")
sketch7.AttachmentSupport = (doc.getObject("XY_Plane"), [""])
sketch7.MapMode = "FlatFace"
sketch7.AttachmentOffset = App.Placement(Vector(0, 0, 10), App.Rotation())
sketch7.addGeometry([
    Part.ArcOfCircle(Part.Circle(Vector(0, 112, 0), Vector(0, 0, 1), 3.5), math.radians(0), math.radians(180)),  # 0
    Part.LineSegment(Vector(-3.5, 112, 0), Vector(-3.5, 107, 0)),  # 1
    Part.ArcOfCircle(Part.Circle(Vector(0, 107, 0), Vector(0, 0, 1), 3.5), math.radians(180), math.radians(360)),  # 2
    Part.LineSegment(Vector(3.5, 107, 0), Vector(3.5, 112, 0)),  # 3
    Part.ArcOfCircle(Part.Circle(Vector(0, 68.2, 0), Vector(0, 0, 1), 3.5), math.radians(0), math.radians(180)),  # 4
    Part.LineSegment(Vector(-3.5, 68.2, 0), Vector(-3.5, 63.2, 0)),  # 5
    Part.ArcOfCircle(Part.Circle(Vector(0, 63.2, 0), Vector(0, 0, 1), 3.5), math.radians(180), math.radians(360)),  # 6
    Part.LineSegment(Vector(3.5, 63.2, 0), Vector(3.5, 68.2, 0)),  # 7
    Part.ArcOfCircle(Part.Circle(Vector(21.9, 90, 0), Vector(0, 0, 1), 3.5), math.radians(0), math.radians(180)),  # 8
    Part.LineSegment(Vector(18.4, 90, 0), Vector(18.4, 85, 0)),  # 9
    Part.ArcOfCircle(Part.Circle(Vector(21.9, 85, 0), Vector(0, 0, 1), 3.5), math.radians(180), math.radians(360)),  # 10
    Part.LineSegment(Vector(25.4, 85, 0), Vector(25.4, 90, 0)),  # 11
    Part.ArcOfCircle(Part.Circle(Vector(-21.9, 90, 0), Vector(0, 0, 1), 3.5), math.radians(0), math.radians(180)),  # 12
    Part.LineSegment(Vector(-25.4, 90, 0), Vector(-25.4, 85, 0)),  # 13
    Part.ArcOfCircle(Part.Circle(Vector(-21.9, 85, 0), Vector(0, 0, 1), 3.5), math.radians(180), math.radians(360)),  # 14
    Part.LineSegment(Vector(-18.4, 85, 0), Vector(-18.4, 90, 0)),  # 15
], False)
sketch7.addConstraint([
    Sketcher.Constraint("Tangent", 0, 2, 1, 1),
    Sketcher.Constraint("Tangent", 1, 2, 2, 1),
    Sketcher.Constraint("Tangent", 2, 2, 3, 1),
    Sketcher.Constraint("Tangent", 3, 2, 0, 1),
    Sketcher.Constraint("Tangent", 4, 2, 5, 1),
    Sketcher.Constraint("Tangent", 5, 2, 6, 1),
    Sketcher.Constraint("Tangent", 6, 2, 7, 1),
    Sketcher.Constraint("Tangent", 7, 2, 4, 1),
    Sketcher.Constraint("Tangent", 8, 2, 9, 1),
    Sketcher.Constraint("Tangent", 9, 2, 10, 1),
    Sketcher.Constraint("Tangent", 10, 2, 11, 1),
    Sketcher.Constraint("Tangent", 11, 2, 8, 1),
    Sketcher.Constraint("Tangent", 12, 2, 13, 1),
    Sketcher.Constraint("Tangent", 13, 2, 14, 1),
    Sketcher.Constraint("Tangent", 14, 2, 15, 1),
    Sketcher.Constraint("Tangent", 15, 2, 12, 1),
    Sketcher.Constraint("Vertical", 1),
    Sketcher.Constraint("Vertical", 3),
    Sketcher.Constraint("Vertical", 5),
    Sketcher.Constraint("Vertical", 7),
    Sketcher.Constraint("Vertical", 9),
    Sketcher.Constraint("Vertical", 11),
    Sketcher.Constraint("Vertical", 13),
    Sketcher.Constraint("Vertical", 15),
    Sketcher.Constraint("Equal", 2, 4),
    Sketcher.Constraint("Equal", 6, 8),
    Sketcher.Constraint("Equal", 10, 12),
    Sketcher.Constraint("Symmetric", 8, 3, 12, 3, -2),
    Sketcher.Constraint("PointOnObject", 0, 3, -2),
    Sketcher.Constraint("PointOnObject", 4, 3, -2),
    Sketcher.Constraint("Horizontal", 10, 3, 14, 3),
    Sketcher.Constraint("Equal", 3, 5),
    Sketcher.Constraint("Equal", 7, 9),
    Sketcher.Constraint("Radius", 0, Q("3.5 mm")),
    Sketcher.Constraint("DistanceY", 1, 2, 1, 1, Q("5 mm")),
    Sketcher.Constraint("DistanceY", -1, 1, 0, 3, Q("112 mm")),
    Sketcher.Constraint("DistanceY", -1, 1, 8, 3, Q("90 mm")),
    Sketcher.Constraint("DistanceX", -1, 1, 8, 3, Q("21.9 mm")),
    Sketcher.Constraint("DistanceY", -1, 1, 4, 3, Q("68.25 mm")),
])
pocket5 = body.newObject("PartDesign::Pocket", "Pocket004")
pocket5.Profile = sketch7
pocket5.Length = 5

# Sketch on XY plane
sketch8 = body.newObject("Sketcher::SketchObject", "Sketch007")
sketch8.AttachmentSupport = (doc.getObject("XY_Plane"), [""])
sketch8.MapMode = "FlatFace"
sketch8.addGeometry([
    Part.ArcOfCircle(Part.Circle(Vector(0, 1, 0), Vector(0, 0, 1), 15), math.radians(180), math.radians(360)),
    Part.LineSegment(Vector(-15, 1, 0), Vector(-15, 39, 0)),
    Part.ArcOfCircle(Part.Circle(Vector(0, 39, 0), Vector(0, 0, 1), 15), math.radians(0), math.radians(180)),
    Part.LineSegment(Vector(15, 39, 0), Vector(15, 1, 0)),
], False)
sketch8.addConstraint([
    Sketcher.Constraint("Tangent", 0, 1, 1, 1),
    Sketcher.Constraint("Tangent", 1, 2, 2, 2),
    Sketcher.Constraint("Tangent", 2, 1, 3, 1),
    Sketcher.Constraint("Tangent", 3, 2, 0, 2),
    Sketcher.Constraint("Vertical", 1),
    Sketcher.Constraint("Vertical", 3),
    Sketcher.Constraint("PointOnObject", 0, 3, -2),
    Sketcher.Constraint("Radius", 0, Q("15 mm")),
    Sketcher.Constraint("DistanceY", 1, 1, 1, 2, Q("38 mm")),
    Sketcher.Constraint("DistanceY", -1, 1, 0, 3, Q("1 mm")),
])
pocket6 = body.newObject("PartDesign::Pocket", "Pocket005")
pocket6.Profile = sketch8
pocket6.Type = "ThroughAll"
pocket6.Reversed = True

# Sketch on XY plane
sketch9 = body.newObject("Sketcher::SketchObject", "Sketch008")
sketch9.AttachmentSupport = (doc.getObject("XY_Plane"), [""])
sketch9.MapMode = "FlatFace"
sketch9.addGeometry([
    Part.LineSegment(Vector(4.6, -24.2, 0), Vector(2.3, -20.2, 0)),  # 0
    Part.LineSegment(Vector(2.3, -20.2, 0), Vector(-2.3, -20.2, 0)),  # 1
    Part.LineSegment(Vector(-2.3, -20.2, 0), Vector(-4.6, -24.2, 0)),  # 2
    Part.LineSegment(Vector(-4.6, -24.2, 0), Vector(-2.3, -28.2, 0)),  # 3
    Part.LineSegment(Vector(-2.3, -28.2, 0), Vector(2.3, -28.2, 0)),  # 4
    Part.LineSegment(Vector(2.3, -28.2, 0), Vector(4.6, -24.2, 0)),  # 5
], False)
sketch9.addConstraint([
    Sketcher.Constraint("Coincident", 0, 2, 1, 1),
    Sketcher.Constraint("Coincident", 1, 2, 2, 1),
    Sketcher.Constraint("Coincident", 2, 2, 3, 1),
    Sketcher.Constraint("Coincident", 3, 2, 4, 1),
    Sketcher.Constraint("Coincident", 4, 2, 5, 1),
    Sketcher.Constraint("Coincident", 5, 2, 0, 1),
    Sketcher.Constraint("Horizontal", 1),
    Sketcher.Constraint("Horizontal", 4),
    Sketcher.Constraint("Symmetric", 2, 2, 5, 2, -2),
    Sketcher.Constraint("Parallel", 0, 3),
    Sketcher.Constraint("Parallel", 2, 5),
    Sketcher.Constraint("Vertical", 1, 2, 3, 2),
    Sketcher.Constraint("Vertical", 0, 2, 4, 2),
    Sketcher.Constraint("Angle", 0, Q("119.999999 deg")),
    Sketcher.Constraint("DistanceY", 2, 2, 1, 2, Q("4 mm")),
    Sketcher.Constraint("DistanceY", 0, 2, -1, 1, Q("20.25 mm")),
    Sketcher.Constraint("DistanceX", 1, 2, 1, 1, Q("4.618802 mm")),
])
pocket7 = body.newObject("PartDesign::Pocket", "Pocket006")
pocket7.Profile = sketch9
pocket7.Length = 4
pocket7.Reversed = True

# Sketch on XY plane
sketch10 = body.newObject("Sketcher::SketchObject", "Sketch009")
sketch10.AttachmentSupport = (doc.getObject("XY_Plane"), [""])
sketch10.MapMode = "FlatFace"
sketch10.addGeometry([
    Part.LineSegment(Vector(-15, -26, 0), Vector(-15, -30, 0)),  # 0
    Part.LineSegment(Vector(-15, -30, 0), Vector(-9, -30, 0)),  # 1
    Part.LineSegment(Vector(-9, -30, 0), Vector(-9, -26, 0)),  # 2
    Part.LineSegment(Vector(-9, -26, 0), Vector(-15, -26, 0)),  # 3
    Part.LineSegment(Vector(9, -26, 0), Vector(9, -30, 0)),  # 4
    Part.LineSegment(Vector(9, -30, 0), Vector(15, -30, 0)),  # 5
    Part.LineSegment(Vector(15, -30, 0), Vector(15, -26, 0)),  # 6
    Part.LineSegment(Vector(15, -26, 0), Vector(9, -26, 0)),  # 7
    Part.LineSegment(Vector(-32, 74, 0), Vector(-32, 70, 0)),  # 8
    Part.LineSegment(Vector(-32, 70, 0), Vector(-26, 70, 0)),  # 9
    Part.LineSegment(Vector(-26, 70, 0), Vector(-26, 74, 0)),  # 10
    Part.LineSegment(Vector(-26, 74, 0), Vector(-32, 74, 0)),  # 11
], False)
sketch10.addConstraint([
    Sketcher.Constraint("Coincident", 0, 2, 1, 1),
    Sketcher.Constraint("Coincident", 1, 2, 2, 1),
    Sketcher.Constraint("Coincident", 2, 2, 3, 1),
    Sketcher.Constraint("Coincident", 3, 2, 0, 1),
    Sketcher.Constraint("Coincident", 4, 2, 5, 1),
    Sketcher.Constraint("Coincident", 5, 2, 6, 1),
    Sketcher.Constraint("Coincident", 6, 2, 7, 1),
    Sketcher.Constraint("Coincident", 7, 2, 4, 1),
    Sketcher.Constraint("Coincident", 8, 2, 9, 1),
    Sketcher.Constraint("Coincident", 9, 2, 10, 1),
    Sketcher.Constraint("Coincident", 10, 2, 11, 1),
    Sketcher.Constraint("Coincident", 11, 2, 8, 1),
    Sketcher.Constraint("Vertical", 0),
    Sketcher.Constraint("Horizontal", 1),
    Sketcher.Constraint("Vertical", 2),
    Sketcher.Constraint("Horizontal", 3),
    Sketcher.Constraint("Vertical", 4),
    Sketcher.Constraint("Horizontal", 5),
    Sketcher.Constraint("Vertical", 6),
    Sketcher.Constraint("Horizontal", 7),
    Sketcher.Constraint("Vertical", 8),
    Sketcher.Constraint("Horizontal", 9),
    Sketcher.Constraint("Vertical", 10),
    Sketcher.Constraint("Horizontal", 11),
    Sketcher.Constraint("Symmetric", 1, 2, 4, 2, -2),
    Sketcher.Constraint("Symmetric", 3, 2, 6, 2, -2),
    Sketcher.Constraint("Equal", 7, 9),
    Sketcher.Constraint("Equal", 6, 8),
    Sketcher.Constraint("DistanceX", 1, 1, 1, 2, Q("6 mm")),
    Sketcher.Constraint("DistanceY", 0, 2, 0, 1, Q("4 mm")),
    Sketcher.Constraint("DistanceX", 0, 2, -1, 1, Q("15 mm")),
    Sketcher.Constraint("DistanceY", 0, 2, -1, 1, Q("30 mm")),
    Sketcher.Constraint("DistanceX", 8, 2, -1, 1, Q("32 mm")),
    Sketcher.Constraint("DistanceY", -1, 1, 8, 2, Q("70 mm")),
])
pad3 = body.newObject("PartDesign::Pad", "Pad002")
pad3.Profile = sketch10
pad3.Length = 15

# Sketch on XZ plane
sketch11 = body.newObject("Sketcher::SketchObject", "Sketch010")
sketch11.AttachmentSupport = (doc.getObject("XZ_Plane"), [""])
sketch11.MapMode = "FlatFace"
sketch11.addGeometry([
    Part.Circle(Vector(-41.2, 5, 0), Vector(0, 0, 1), 1.7),
    Part.Circle(Vector(41.2, 5, 0), Vector(0, 0, 1), 1.7),
], False)
sketch11.addConstraint([
    Sketcher.Constraint("Equal", 0, 1),
    Sketcher.Constraint("Symmetric", 0, 3, 1, 3, -2),
    Sketcher.Constraint("Diameter", 0, Q("3.4 mm")),
    Sketcher.Constraint("DistanceY", -1, 1, 0, 3, Q("5 mm")),
    Sketcher.Constraint("DistanceX", 0, 3, 1, 3, Q("82.5 mm")),
])
pocket8 = body.newObject("PartDesign::Pocket", "Pocket007")
pocket8.Profile = sketch11
pocket8.Length = 35

# Sketch on XY plane
sketch12 = body.newObject("Sketcher::SketchObject", "Sketch011")
sketch12.AttachmentSupport = (doc.getObject("XY_Plane"), [""])
sketch12.MapMode = "FlatFace"
sketch12.AttachmentOffset = App.Placement(Vector(0, 0, 10), App.Rotation())
sketch12.addGeometry([
    Part.LineSegment(Vector(-44, 23.5, 0), Vector(-44, 20.5, 0)),  # 0
    Part.LineSegment(Vector(-44, 20.5, 0), Vector(-38.5, 20.5, 0)),  # 1
    Part.LineSegment(Vector(-38.5, 20.5, 0), Vector(-38.5, 23.5, 0)),  # 2
    Part.LineSegment(Vector(-38.5, 23.5, 0), Vector(-44, 23.5, 0)),  # 3
    Part.LineSegment(Vector(38.5, 23.5, 0), Vector(38.5, 20.5, 0)),  # 4
    Part.LineSegment(Vector(38.5, 20.5, 0), Vector(44, 20.5, 0)),  # 5
    Part.LineSegment(Vector(44, 20.5, 0), Vector(44, 23.5, 0)),  # 6
    Part.LineSegment(Vector(44, 23.5, 0), Vector(38.5, 23.5, 0)),  # 7
], False)
sketch12.addConstraint([
    Sketcher.Constraint("Coincident", 0, 2, 1, 1),
    Sketcher.Constraint("Coincident", 1, 2, 2, 1),
    Sketcher.Constraint("Coincident", 2, 2, 3, 1),
    Sketcher.Constraint("Coincident", 3, 2, 0, 1),
    Sketcher.Constraint("Coincident", 4, 2, 5, 1),
    Sketcher.Constraint("Coincident", 5, 2, 6, 1),
    Sketcher.Constraint("Coincident", 6, 2, 7, 1),
    Sketcher.Constraint("Coincident", 7, 2, 4, 1),
    Sketcher.Constraint("Vertical", 0),
    Sketcher.Constraint("Horizontal", 1),
    Sketcher.Constraint("Vertical", 2),
    Sketcher.Constraint("Horizontal", 3),
    Sketcher.Constraint("Vertical", 4),
    Sketcher.Constraint("Horizontal", 5),
    Sketcher.Constraint("Vertical", 6),
    Sketcher.Constraint("Horizontal", 7),
    Sketcher.Constraint("Symmetric", 1, 2, 4, 2, -2),
    Sketcher.Constraint("Symmetric", 3, 2, 6, 2, -2),
    Sketcher.Constraint("DistanceY", 0, 2, 0, 1, Q("3 mm")),
    Sketcher.Constraint("DistanceX", 1, 1, 1, 2, Q("5.5 mm")),
    Sketcher.Constraint("DistanceX", 0, 2, -1, 1, Q("44 mm")),
    Sketcher.Constraint("DistanceY", -1, 1, 0, 2, Q("20.5 mm")),
])
pocket9 = body.newObject("PartDesign::Pocket", "Pocket008")
pocket9.Profile = sketch12
pocket9.Length = 8

# Sketch on XY plane
sketch13 = body.newObject("Sketcher::SketchObject", "Sketch012")
sketch13.AttachmentSupport = (doc.getObject("XY_Plane"), [""])
sketch13.MapMode = "FlatFace"
sketch13.AttachmentOffset = App.Placement(Vector(0, 0, 10), App.Rotation())
sketch13.addGeometry(Part.Circle(Vector(0, -24, 0), Vector(0, 0, 1), 4.8), False)
sketch13.addConstraint([
    Sketcher.Constraint("PointOnObject", 0, 3, -2),
    Sketcher.Constraint("Diameter", 0, Q("9.5 mm")),
    Sketcher.Constraint("DistanceY", 0, 3, -1, 1, Q("24 mm")),
])
pad4 = body.newObject("PartDesign::Pad", "Pad003")
pad4.Profile = sketch13
pad4.Length = 2

# Sketch on XY plane
sketch14 = body.newObject("Sketcher::SketchObject", "Sketch013")
sketch14.AttachmentSupport = (doc.getObject("XY_Plane"), [""])
sketch14.MapMode = "FlatFace"
sketch14.addGeometry(Part.Circle(Vector(0, -24, 0), Vector(0, 0, 1), 2.6), False)
sketch14.addConstraint([
    Sketcher.Constraint("PointOnObject", 0, 3, -2),
    Sketcher.Constraint("Diameter", 0, Q("5.3 mm")),
    Sketcher.Constraint("DistanceY", 0, 3, -1, 1, Q("24 mm")),
])
pocket10 = body.newObject("PartDesign::Pocket", "Pocket009")
pocket10.Profile = sketch14
pocket10.Length = 25
pocket10.Reversed = True

# Sketch on XY plane
sketch15 = body.newObject("Sketcher::SketchObject", "Sketch014")
sketch15.AttachmentSupport = (doc.getObject("XY_Plane"), [""])
sketch15.MapMode = "FlatFace"
sketch15.AttachmentOffset = App.Placement(Vector(0, 0, 3), App.Rotation())
sketch15.addGeometry([
    Part.Circle(Vector(-33, 88, 0), Vector(0, 0, 1), 5),
    Part.Circle(Vector(-33, 88, 0), Vector(0, 0, 1), 3),
    Part.Circle(Vector(33, 88, 0), Vector(0, 0, 1), 5),
    Part.Circle(Vector(33, 88, 0), Vector(0, 0, 1), 3),
], False)
sketch15.addConstraint([
    Sketcher.Constraint("Coincident", 1, 3, 0, 3),
    Sketcher.Constraint("Coincident", 3, 3, 2, 3),
    Sketcher.Constraint("Equal", 0, 2),
    Sketcher.Constraint("Equal", 1, 3),
    Sketcher.Constraint("Symmetric", 0, 3, 2, 3, -2),
    Sketcher.Constraint("Diameter", 0, Q("10 mm")),
    Sketcher.Constraint("Diameter", 1, Q("6 mm")),
    Sketcher.Constraint("DistanceX", 0, 3, -1, 1, Q("33 mm")),
    Sketcher.Constraint("DistanceY", -1, 1, 0, 3, Q("88 mm")),
])
pocket11 = body.newObject("PartDesign::Pocket", "Pocket010")
pocket11.Profile = sketch15
pocket11.Type = "TwoLengths"
pocket11.Length = 0.5
pocket11.Length2 = 4.5
doc.recompute()

chamfer = body.newObject("PartDesign::Chamfer", "Chamfer")
chamfer.Base = (pocket11, edges_at(pocket11, [(0, 119.911, 5)]))
chamfer.Size = 0.75
doc.recompute()

chamfer2 = body.newObject("PartDesign::Chamfer", "Chamfer001")
chamfer2.Base = (chamfer, edges_at(chamfer, [(50, 86.5, 5), (-4.75, -24, 10)]))
chamfer2.Size = 1

doc.recompute()
